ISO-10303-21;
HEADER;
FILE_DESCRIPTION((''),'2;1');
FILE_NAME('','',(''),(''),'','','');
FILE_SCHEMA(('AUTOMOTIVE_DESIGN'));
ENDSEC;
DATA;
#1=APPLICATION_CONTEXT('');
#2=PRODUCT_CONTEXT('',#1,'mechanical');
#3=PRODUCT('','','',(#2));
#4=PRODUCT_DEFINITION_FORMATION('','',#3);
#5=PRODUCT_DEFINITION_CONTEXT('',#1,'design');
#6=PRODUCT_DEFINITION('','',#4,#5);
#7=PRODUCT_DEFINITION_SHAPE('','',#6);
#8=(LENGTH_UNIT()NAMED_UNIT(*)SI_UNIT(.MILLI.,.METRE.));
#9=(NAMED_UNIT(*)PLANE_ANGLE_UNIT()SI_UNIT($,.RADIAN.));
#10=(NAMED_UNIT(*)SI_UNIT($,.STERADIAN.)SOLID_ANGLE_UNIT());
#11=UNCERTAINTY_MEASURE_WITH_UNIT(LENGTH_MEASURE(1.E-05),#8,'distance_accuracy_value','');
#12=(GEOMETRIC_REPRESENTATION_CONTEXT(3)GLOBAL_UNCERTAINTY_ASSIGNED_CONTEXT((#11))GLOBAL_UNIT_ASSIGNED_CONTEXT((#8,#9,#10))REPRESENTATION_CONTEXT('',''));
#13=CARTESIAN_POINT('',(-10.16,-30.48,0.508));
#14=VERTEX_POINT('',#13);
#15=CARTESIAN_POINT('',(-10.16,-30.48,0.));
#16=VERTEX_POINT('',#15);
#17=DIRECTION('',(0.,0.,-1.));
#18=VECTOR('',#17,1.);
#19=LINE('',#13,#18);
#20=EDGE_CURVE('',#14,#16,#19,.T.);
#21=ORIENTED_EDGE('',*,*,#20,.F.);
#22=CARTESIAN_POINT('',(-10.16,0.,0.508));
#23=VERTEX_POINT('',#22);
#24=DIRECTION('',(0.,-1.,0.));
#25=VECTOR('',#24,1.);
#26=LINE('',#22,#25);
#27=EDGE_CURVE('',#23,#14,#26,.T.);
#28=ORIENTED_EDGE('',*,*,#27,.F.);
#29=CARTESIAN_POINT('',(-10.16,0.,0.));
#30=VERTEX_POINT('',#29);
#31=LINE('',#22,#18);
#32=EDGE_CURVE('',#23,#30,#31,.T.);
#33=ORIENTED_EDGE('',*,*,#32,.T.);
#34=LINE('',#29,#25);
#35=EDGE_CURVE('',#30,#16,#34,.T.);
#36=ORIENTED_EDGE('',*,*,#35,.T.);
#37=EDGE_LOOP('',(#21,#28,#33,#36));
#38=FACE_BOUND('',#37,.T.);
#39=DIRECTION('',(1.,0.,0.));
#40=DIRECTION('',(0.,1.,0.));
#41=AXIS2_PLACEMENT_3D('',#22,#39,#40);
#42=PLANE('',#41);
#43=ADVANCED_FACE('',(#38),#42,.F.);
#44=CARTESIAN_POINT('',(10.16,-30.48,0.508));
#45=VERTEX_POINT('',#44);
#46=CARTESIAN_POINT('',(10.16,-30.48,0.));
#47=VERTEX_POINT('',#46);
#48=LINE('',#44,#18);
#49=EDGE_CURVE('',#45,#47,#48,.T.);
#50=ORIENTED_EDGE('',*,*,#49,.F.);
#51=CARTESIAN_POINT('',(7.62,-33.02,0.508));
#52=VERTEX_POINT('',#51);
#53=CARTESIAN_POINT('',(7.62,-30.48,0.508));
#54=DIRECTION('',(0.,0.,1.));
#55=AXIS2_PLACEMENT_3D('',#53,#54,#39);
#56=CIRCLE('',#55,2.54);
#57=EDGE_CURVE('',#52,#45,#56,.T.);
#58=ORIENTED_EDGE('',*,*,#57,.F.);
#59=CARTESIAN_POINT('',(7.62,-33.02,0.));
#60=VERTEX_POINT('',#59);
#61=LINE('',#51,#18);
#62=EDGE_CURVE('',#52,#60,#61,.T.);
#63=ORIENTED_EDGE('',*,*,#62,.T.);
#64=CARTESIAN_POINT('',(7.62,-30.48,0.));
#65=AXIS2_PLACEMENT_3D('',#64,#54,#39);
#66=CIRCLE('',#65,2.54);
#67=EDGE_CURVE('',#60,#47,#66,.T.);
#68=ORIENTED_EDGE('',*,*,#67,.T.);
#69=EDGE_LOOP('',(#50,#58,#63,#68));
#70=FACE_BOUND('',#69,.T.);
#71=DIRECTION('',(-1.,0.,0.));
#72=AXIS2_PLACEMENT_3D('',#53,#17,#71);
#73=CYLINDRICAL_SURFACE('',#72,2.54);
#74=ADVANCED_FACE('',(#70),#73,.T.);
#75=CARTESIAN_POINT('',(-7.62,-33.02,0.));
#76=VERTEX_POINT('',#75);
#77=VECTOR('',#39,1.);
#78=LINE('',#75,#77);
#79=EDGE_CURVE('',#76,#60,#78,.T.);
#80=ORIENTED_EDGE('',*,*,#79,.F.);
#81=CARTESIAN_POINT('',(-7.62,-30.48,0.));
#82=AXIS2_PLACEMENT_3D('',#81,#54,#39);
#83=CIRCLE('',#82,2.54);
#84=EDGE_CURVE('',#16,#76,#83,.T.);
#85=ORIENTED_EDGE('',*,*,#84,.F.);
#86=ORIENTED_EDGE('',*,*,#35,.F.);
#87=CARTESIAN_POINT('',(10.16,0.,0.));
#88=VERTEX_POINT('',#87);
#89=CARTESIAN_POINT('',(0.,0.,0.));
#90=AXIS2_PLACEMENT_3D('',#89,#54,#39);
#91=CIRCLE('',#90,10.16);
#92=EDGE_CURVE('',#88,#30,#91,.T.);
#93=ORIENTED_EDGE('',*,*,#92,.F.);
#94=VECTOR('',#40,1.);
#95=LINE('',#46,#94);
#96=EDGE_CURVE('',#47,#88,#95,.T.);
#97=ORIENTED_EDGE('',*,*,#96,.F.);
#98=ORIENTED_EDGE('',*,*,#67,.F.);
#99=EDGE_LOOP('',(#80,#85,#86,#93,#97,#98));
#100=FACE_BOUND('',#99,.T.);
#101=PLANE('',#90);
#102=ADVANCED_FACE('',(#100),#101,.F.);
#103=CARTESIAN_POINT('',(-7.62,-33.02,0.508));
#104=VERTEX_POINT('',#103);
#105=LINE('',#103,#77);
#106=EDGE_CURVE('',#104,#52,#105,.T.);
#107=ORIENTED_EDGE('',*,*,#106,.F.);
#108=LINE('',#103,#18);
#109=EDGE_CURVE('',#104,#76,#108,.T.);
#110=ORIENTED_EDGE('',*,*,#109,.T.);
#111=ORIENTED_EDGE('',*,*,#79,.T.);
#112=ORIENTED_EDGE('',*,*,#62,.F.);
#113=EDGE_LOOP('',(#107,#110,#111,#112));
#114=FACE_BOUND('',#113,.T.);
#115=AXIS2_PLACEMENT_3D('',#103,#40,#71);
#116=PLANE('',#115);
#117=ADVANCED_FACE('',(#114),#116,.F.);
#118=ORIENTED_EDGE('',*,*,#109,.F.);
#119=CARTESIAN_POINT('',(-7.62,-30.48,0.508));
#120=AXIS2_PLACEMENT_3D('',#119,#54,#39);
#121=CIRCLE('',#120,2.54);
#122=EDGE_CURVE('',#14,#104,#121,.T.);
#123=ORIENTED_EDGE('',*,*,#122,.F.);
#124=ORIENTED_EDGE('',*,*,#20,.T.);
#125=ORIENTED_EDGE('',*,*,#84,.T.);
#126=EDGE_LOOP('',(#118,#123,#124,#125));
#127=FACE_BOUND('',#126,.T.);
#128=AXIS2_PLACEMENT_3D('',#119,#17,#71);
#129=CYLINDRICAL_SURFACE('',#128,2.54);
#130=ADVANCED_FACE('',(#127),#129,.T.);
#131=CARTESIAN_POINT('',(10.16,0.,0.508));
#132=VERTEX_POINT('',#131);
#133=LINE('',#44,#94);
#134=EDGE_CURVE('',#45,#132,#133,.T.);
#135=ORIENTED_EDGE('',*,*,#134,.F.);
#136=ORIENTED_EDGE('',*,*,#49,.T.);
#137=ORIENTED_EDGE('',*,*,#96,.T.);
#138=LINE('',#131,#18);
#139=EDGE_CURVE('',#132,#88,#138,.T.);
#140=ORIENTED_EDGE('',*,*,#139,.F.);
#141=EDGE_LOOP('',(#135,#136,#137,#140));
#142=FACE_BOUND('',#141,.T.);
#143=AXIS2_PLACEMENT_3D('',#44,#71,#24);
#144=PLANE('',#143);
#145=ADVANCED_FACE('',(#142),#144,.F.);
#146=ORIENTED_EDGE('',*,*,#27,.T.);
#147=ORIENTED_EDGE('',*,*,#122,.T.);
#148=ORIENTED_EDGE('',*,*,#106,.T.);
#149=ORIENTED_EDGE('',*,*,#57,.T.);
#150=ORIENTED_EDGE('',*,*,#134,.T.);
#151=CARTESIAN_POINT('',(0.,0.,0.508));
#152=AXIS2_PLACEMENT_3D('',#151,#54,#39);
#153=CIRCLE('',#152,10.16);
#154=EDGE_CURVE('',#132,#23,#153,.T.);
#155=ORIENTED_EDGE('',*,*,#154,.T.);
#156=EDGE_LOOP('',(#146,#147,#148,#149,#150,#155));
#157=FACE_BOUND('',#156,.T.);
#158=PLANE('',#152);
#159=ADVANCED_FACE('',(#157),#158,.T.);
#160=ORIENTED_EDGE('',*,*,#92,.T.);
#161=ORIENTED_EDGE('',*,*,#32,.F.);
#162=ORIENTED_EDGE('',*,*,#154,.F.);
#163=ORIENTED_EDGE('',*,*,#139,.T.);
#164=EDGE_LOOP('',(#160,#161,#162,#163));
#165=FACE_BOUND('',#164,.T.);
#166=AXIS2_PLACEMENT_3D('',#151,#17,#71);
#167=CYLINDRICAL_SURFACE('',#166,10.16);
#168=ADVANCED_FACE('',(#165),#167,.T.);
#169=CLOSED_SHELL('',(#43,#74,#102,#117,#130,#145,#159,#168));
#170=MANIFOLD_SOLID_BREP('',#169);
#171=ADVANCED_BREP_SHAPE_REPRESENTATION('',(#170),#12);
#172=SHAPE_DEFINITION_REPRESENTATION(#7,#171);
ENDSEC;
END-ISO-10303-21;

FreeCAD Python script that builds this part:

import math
import FreeCAD as App
import Part
import Sketcher

V = App.Vector
Q = App.Units.Quantity

doc = App.newDocument("Part")
body = doc.addObject("PartDesign::Body", "Body")

# Sketch on XY plane
sketch1 = doc.addObject("Sketcher::SketchObject", "Sketch")
body.addObject(sketch1)
sketch1.AttachmentSupport = (doc.XY_Plane, [""])
sketch1.MapMode = "FlatFace"
sketch1.addGeometry([
    Part.LineSegment(V(10.2, -30.5, 0), V(10.2, 0, 0)),  # 0
    Part.ArcOfCircle(Part.Circle(V(0, 0, 0), V(0, 0, 1), 10.2), math.radians(0), math.radians(180)),  # 1
    Part.LineSegment(V(-10.2, 0, 0), V(-10.2, -30.5, 0)),  # 2
    Part.ArcOfCircle(Part.Circle(V(-7.6, -30.5, 0), V(0, 0, 1), 2.5), math.radians(-180), math.radians(-90)),  # 3
    Part.LineSegment(V(-7.6, -33, 0), V(7.6, -33, 0)),  # 4
    Part.ArcOfCircle(Part.Circle(V(7.6, -30.5, 0), V(0, 0, 1), 2.5), math.radians(-90), math.radians(0)),  # 5
], False)
sketch1.addConstraint([
    Sketcher.Constraint("Tangent", 0, 2, 1, 1),
    Sketcher.Constraint("Tangent", 1, 2, 2, 1),
    Sketcher.Constraint("Tangent", 2, 2, 3, 1),
    Sketcher.Constraint("Tangent", 3, 2, 4, 1),
    Sketcher.Constraint("Tangent", 4, 2, 5, 1),
    Sketcher.Constraint("Tangent", 5, 2, 0, 1),
    Sketcher.Constraint("Vertical", 0),
    Sketcher.Constraint("Vertical", 2),
    Sketcher.Constraint("Horizontal", 4),
    Sketcher.Constraint("Coincident", 1, 3, -1, 1),
    Sketcher.Constraint("Equal", 3, 5),
    Sketcher.Constraint("Radius", 1, Q("0.4 in")),
    Sketcher.Constraint("Radius", 3, Q("0.1 in")),
    Sketcher.Constraint("DistanceY", 0, 1, 0, 2, Q("1.2 in")),
])
pad1 = doc.addObject("PartDesign::Pad", "Pad")
body.addObject(pad1)
pad1.Profile = sketch1
pad1.Length = Q("0.02 in")

doc.recompute()
